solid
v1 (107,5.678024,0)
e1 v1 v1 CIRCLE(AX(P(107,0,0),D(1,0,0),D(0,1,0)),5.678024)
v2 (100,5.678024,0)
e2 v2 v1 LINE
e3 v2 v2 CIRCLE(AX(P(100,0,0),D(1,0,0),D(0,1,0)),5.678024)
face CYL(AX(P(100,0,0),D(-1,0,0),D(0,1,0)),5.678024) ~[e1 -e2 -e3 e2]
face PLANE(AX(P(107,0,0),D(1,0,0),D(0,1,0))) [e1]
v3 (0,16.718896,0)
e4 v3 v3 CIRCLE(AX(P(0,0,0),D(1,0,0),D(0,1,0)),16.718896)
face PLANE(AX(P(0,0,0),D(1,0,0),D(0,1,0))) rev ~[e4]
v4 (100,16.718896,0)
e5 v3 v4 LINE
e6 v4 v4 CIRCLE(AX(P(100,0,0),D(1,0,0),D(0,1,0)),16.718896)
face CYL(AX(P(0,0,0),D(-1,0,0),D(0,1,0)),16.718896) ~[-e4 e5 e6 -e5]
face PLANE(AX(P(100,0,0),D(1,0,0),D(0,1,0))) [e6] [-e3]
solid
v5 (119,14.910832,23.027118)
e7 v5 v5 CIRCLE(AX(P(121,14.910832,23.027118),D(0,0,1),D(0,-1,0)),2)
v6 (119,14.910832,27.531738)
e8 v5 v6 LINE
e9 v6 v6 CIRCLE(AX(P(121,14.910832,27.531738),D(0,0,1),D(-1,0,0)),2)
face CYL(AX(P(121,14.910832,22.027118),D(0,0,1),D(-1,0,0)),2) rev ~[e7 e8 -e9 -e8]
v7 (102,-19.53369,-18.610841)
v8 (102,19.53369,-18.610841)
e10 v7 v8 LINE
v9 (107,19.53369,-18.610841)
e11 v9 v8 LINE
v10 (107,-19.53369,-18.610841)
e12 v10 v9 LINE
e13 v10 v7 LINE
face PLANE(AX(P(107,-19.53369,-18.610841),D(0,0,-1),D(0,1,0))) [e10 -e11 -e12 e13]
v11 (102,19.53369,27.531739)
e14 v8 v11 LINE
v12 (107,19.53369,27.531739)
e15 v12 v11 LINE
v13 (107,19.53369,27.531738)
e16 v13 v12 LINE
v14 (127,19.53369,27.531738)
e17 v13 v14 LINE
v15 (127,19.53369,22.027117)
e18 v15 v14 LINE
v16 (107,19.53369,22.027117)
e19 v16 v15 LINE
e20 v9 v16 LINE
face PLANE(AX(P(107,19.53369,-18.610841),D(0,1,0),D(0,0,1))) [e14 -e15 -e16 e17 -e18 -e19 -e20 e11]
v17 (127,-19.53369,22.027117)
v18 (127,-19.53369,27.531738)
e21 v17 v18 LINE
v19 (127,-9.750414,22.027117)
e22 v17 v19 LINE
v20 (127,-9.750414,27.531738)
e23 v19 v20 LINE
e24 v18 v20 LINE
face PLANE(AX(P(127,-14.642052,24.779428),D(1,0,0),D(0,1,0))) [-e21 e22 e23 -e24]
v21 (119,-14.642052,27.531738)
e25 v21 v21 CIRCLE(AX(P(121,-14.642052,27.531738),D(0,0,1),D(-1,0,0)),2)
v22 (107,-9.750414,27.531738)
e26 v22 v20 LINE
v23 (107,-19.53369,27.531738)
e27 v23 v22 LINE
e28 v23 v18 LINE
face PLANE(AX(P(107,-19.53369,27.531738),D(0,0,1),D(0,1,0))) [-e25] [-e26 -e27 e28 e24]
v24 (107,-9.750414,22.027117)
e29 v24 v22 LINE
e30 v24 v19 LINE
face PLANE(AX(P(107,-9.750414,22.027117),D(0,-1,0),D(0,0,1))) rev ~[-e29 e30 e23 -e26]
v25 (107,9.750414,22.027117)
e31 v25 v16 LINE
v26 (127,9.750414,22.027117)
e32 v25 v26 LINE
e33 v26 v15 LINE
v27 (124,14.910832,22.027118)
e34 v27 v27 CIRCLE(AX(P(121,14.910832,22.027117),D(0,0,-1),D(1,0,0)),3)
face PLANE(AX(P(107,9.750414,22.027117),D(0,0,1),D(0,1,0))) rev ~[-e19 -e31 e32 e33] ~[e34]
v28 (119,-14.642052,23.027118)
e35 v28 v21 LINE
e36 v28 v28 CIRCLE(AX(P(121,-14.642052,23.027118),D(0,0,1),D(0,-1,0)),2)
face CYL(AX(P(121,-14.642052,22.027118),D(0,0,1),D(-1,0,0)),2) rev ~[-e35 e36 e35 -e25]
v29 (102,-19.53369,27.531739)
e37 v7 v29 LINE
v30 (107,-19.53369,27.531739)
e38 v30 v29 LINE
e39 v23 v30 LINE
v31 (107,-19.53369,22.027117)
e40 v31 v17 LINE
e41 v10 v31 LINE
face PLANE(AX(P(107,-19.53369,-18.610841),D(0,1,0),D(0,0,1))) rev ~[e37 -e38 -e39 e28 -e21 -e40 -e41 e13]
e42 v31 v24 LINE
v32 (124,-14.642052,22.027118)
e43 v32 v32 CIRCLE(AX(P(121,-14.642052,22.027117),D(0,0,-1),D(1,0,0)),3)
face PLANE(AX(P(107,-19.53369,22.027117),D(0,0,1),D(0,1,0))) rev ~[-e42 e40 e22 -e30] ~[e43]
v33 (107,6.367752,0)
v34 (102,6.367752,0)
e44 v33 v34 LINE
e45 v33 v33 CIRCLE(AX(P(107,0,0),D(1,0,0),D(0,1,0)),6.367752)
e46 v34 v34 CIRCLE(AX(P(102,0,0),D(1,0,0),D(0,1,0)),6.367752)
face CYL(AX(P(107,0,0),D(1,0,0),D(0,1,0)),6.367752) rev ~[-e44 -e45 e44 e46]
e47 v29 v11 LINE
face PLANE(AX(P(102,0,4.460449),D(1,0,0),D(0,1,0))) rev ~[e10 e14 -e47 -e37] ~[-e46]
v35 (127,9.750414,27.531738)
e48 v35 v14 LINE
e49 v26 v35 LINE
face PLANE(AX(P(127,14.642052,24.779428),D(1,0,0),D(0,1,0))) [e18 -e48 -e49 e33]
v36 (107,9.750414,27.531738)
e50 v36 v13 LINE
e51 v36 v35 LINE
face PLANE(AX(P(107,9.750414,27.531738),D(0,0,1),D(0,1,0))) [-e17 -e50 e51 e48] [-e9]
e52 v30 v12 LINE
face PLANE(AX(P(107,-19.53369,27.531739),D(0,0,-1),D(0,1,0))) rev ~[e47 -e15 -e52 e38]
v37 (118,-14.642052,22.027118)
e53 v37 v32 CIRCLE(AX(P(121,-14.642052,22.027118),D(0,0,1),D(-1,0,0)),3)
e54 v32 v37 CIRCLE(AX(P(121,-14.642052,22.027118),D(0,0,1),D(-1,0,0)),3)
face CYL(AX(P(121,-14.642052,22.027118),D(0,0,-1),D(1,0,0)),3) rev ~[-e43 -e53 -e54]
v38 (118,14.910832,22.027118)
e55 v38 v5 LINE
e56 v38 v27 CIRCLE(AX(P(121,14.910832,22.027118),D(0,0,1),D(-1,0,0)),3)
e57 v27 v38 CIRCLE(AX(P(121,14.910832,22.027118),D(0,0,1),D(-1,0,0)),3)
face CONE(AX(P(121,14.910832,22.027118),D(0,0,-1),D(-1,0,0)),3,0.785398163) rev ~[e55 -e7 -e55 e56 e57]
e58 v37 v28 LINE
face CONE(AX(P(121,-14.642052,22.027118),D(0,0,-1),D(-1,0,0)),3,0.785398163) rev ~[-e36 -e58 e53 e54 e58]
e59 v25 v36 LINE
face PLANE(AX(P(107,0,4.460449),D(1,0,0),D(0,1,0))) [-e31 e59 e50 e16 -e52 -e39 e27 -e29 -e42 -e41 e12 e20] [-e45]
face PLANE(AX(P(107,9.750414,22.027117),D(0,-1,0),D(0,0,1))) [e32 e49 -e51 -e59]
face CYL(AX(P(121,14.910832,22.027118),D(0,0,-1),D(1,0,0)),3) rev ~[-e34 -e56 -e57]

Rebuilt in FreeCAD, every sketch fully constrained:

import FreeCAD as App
import Part
import Sketcher

V = App.Vector
Q = App.Units.Quantity


def add_polygon(sketch, points):
    """Adds a closed chain of lines whose ends are joined by coincident constraints."""
    first, n = sketch.GeometryCount, len(points)
    for a, b in zip(points, points[1:] + points[:1]):
        sketch.addGeometry(Part.LineSegment(App.Vector(*a, 0), App.Vector(*b, 0)), False)
    for i in range(n):
        sketch.addConstraint(Sketcher.Constraint("Coincident", first + i, 2, first + (i + 1) % n, 1))

doc = App.newDocument("Part")
body = doc.addObject("PartDesign::Body", "Body")

# Sketch on YZ plane
sketch1 = doc.addObject("Sketcher::SketchObject", "Sketch")
body.addObject(sketch1)
sketch1.AttachmentSupport = (doc.YZ_Plane, [""])
sketch1.MapMode = "FlatFace"
sketch1.addGeometry(Part.Circle(V(0, 0, 0), V(0, 0, 1), 17), False)
sketch1.addConstraint([
    Sketcher.Constraint("Coincident", 0, 3, -1, 1),
    Sketcher.Constraint("Diameter", 0, Q("33.437792 mm")),
])
pad1 = doc.addObject("PartDesign::Pad", "Pad")
body.addObject(pad1)
pad1.Profile = sketch1
pad1.Length = 100

# Sketch on YZ plane
sketch2 = doc.addObject("Sketcher::SketchObject", "Sketch001")
body.addObject(sketch2)
sketch2.AttachmentSupport = (doc.YZ_Plane, [""])
sketch2.MapMode = "FlatFace"
sketch2.AttachmentOffset = App.Placement(V(0, 0, 100), App.Rotation())
sketch2.addGeometry(Part.Circle(V(0, 0, 0), V(0, 0, 1), 6), False)
sketch2.addConstraint([
    Sketcher.Constraint("Coincident", 0, 3, -1, 1),
    Sketcher.Constraint("Diameter", 0, Q("11.356048 mm")),
])
pad2 = doc.addObject("PartDesign::Pad", "Pad001")
body.addObject(pad2)
pad2.Profile = sketch2
pad2.Length = 7
body2 = doc.addObject("PartDesign::Body", "Body001")

# Sketch on YZ plane
sketch3 = doc.addObject("Sketcher::SketchObject", "Sketch002")
body2.addObject(sketch3)
sketch3.AttachmentSupport = (doc.getObject("YZ_Plane001"), [""])
sketch3.MapMode = "FlatFace"
sketch3.AttachmentOffset = App.Placement(V(0, 0, 107), App.Rotation())
add_polygon(sketch3, [(-20, 28), (-20, -19), (20, -19), (20, 28)])  # lines 0-3
sketch3.addGeometry(Part.Circle(V(0, 0, 0), V(0, 0, 1), 6), False)  # 4
sketch3.addConstraint([
    Sketcher.Constraint("Vertical", 0),
    Sketcher.Constraint("Horizontal", 1),
    Sketcher.Constraint("Vertical", 2),
    Sketcher.Constraint("Horizontal", 3),
    Sketcher.Constraint("Coincident", 4, 3, -1, 1),
    Sketcher.Constraint("Diameter", 4, Q("12.735504 mm")),
    Sketcher.Constraint("DistanceX", 1, 1, 1, 2, Q("39.06738 mm")),
    Sketcher.Constraint("DistanceY", 0, 2, 0, 1, Q("46.14258 mm")),
    Sketcher.Constraint("DistanceX", 0, 2, -1, 1, Q("19.53369 mm")),
    Sketcher.Constraint("DistanceY", 0, 2, -1, 1, Q("18.610841 mm")),
])
pad3 = doc.addObject("PartDesign::Pad", "Pad002")
body2.addObject(pad3)
pad3.Profile = sketch3
pad3.Length = 5
pad3.Reversed = True

# Sketch on YZ plane
sketch4 = doc.addObject("Sketcher::SketchObject", "Sketch003")
body2.addObject(sketch4)
sketch4.AttachmentSupport = (doc.getObject("YZ_Plane001"), [""])
sketch4.MapMode = "FlatFace"
sketch4.AttachmentOffset = App.Placement(V(0, 0, 107), App.Rotation())
add_polygon(sketch4, [(-20, 28), (-20, 22), (-10, 22), (-10, 28)])  # lines 0-3
add_polygon(sketch4, [(10, 28), (10, 22), (20, 22), (20, 28)])  # lines 4-7
sketch4.addConstraint([
    Sketcher.Constraint("Vertical", 0),
    Sketcher.Constraint("Horizontal", 1),
    Sketcher.Constraint("Vertical", 2),
    Sketcher.Constraint("Horizontal", 3),
    Sketcher.Constraint("Vertical", 4),
    Sketcher.Constraint("Horizontal", 5),
    Sketcher.Constraint("Vertical", 6),
    Sketcher.Constraint("Horizontal", 7),
    Sketcher.Constraint("Symmetric", 1, 2, 4, 2, -2),
    Sketcher.Constraint("Symmetric", 3, 2, 6, 2, -2),
    Sketcher.Constraint("DistanceY", 0, 2, 0, 1, Q("5.504621 mm")),
    Sketcher.Constraint("DistanceX", 1, 1, 1, 2, Q("9.783276 mm")),
    Sketcher.Constraint("DistanceX", 0, 2, -1, 1, Q("19.53369 mm")),
    Sketcher.Constraint("DistanceY", -1, 1, 2, 2, Q("27.531738 mm")),
])
pad4 = doc.addObject("PartDesign::Pad", "Pad003")
body2.addObject(pad4)
pad4.Profile = sketch4
pad4.Length = 20

# Sketch on XY plane
sketch5 = doc.addObject("Sketcher::SketchObject", "Sketch004")
body2.addObject(sketch5)
sketch5.AttachmentSupport = (doc.getObject("XY_Plane001"), [""])
sketch5.MapMode = "FlatFace"
sketch5.AttachmentOffset = App.Placement(V(0, 0, 22.027118), App.Rotation())
sketch5.addGeometry(Part.Circle(V(121, -14.6, 0), V(0, 0, 1), 2), False)
sketch5.addConstraint([
    Sketcher.Constraint("Diameter", 0, Q("4 mm")),
    Sketcher.Constraint("DistanceX", -1, 1, 0, 3, Q("121 mm")),
    Sketcher.Constraint("DistanceY", 0, 3, -1, 1, Q("14.642052 mm")),
])
doc.recompute()
hole = doc.addObject("PartDesign::Hole", "Hole")
body2.addObject(hole)
hole.Profile = sketch5
hole.ThreadType = "None"
hole.Diameter = 4
hole.DepthType = "ThroughAll"
hole.HoleCutType = "Countersink"
hole.HoleCutDiameter = 6
hole.HoleCutCountersinkAngle = 90
hole.Reversed = True

# Sketch on XY plane
sketch6 = doc.addObject("Sketcher::SketchObject", "Sketch005")
body2.addObject(sketch6)
sketch6.AttachmentSupport = (doc.getObject("XY_Plane001"), [""])
sketch6.MapMode = "FlatFace"
sketch6.AttachmentOffset = App.Placement(V(0, 0, 22.027118), App.Rotation())
sketch6.addGeometry(Part.Circle(V(121, 14.9, 0), V(0, 0, 1), 2), False)
sketch6.addConstraint([
    Sketcher.Constraint("Diameter", 0, Q("4 mm")),
    Sketcher.Constraint("DistanceX", -1, 1, 0, 3, Q("121 mm")),
    Sketcher.Constraint("DistanceY", -1, 1, 0, 3, Q("14.910832 mm")),
])
doc.recompute()
hole2 = doc.addObject("PartDesign::Hole", "Hole001")
body2.addObject(hole2)
hole2.Profile = sketch6
hole2.ThreadType = "None"
hole2.Diameter = 4
hole2.DepthType = "ThroughAll"
hole2.HoleCutType = "Countersink"
hole2.HoleCutDiameter = 6
hole2.HoleCutCountersinkAngle = 90
hole2.Reversed = True

doc.recompute()
